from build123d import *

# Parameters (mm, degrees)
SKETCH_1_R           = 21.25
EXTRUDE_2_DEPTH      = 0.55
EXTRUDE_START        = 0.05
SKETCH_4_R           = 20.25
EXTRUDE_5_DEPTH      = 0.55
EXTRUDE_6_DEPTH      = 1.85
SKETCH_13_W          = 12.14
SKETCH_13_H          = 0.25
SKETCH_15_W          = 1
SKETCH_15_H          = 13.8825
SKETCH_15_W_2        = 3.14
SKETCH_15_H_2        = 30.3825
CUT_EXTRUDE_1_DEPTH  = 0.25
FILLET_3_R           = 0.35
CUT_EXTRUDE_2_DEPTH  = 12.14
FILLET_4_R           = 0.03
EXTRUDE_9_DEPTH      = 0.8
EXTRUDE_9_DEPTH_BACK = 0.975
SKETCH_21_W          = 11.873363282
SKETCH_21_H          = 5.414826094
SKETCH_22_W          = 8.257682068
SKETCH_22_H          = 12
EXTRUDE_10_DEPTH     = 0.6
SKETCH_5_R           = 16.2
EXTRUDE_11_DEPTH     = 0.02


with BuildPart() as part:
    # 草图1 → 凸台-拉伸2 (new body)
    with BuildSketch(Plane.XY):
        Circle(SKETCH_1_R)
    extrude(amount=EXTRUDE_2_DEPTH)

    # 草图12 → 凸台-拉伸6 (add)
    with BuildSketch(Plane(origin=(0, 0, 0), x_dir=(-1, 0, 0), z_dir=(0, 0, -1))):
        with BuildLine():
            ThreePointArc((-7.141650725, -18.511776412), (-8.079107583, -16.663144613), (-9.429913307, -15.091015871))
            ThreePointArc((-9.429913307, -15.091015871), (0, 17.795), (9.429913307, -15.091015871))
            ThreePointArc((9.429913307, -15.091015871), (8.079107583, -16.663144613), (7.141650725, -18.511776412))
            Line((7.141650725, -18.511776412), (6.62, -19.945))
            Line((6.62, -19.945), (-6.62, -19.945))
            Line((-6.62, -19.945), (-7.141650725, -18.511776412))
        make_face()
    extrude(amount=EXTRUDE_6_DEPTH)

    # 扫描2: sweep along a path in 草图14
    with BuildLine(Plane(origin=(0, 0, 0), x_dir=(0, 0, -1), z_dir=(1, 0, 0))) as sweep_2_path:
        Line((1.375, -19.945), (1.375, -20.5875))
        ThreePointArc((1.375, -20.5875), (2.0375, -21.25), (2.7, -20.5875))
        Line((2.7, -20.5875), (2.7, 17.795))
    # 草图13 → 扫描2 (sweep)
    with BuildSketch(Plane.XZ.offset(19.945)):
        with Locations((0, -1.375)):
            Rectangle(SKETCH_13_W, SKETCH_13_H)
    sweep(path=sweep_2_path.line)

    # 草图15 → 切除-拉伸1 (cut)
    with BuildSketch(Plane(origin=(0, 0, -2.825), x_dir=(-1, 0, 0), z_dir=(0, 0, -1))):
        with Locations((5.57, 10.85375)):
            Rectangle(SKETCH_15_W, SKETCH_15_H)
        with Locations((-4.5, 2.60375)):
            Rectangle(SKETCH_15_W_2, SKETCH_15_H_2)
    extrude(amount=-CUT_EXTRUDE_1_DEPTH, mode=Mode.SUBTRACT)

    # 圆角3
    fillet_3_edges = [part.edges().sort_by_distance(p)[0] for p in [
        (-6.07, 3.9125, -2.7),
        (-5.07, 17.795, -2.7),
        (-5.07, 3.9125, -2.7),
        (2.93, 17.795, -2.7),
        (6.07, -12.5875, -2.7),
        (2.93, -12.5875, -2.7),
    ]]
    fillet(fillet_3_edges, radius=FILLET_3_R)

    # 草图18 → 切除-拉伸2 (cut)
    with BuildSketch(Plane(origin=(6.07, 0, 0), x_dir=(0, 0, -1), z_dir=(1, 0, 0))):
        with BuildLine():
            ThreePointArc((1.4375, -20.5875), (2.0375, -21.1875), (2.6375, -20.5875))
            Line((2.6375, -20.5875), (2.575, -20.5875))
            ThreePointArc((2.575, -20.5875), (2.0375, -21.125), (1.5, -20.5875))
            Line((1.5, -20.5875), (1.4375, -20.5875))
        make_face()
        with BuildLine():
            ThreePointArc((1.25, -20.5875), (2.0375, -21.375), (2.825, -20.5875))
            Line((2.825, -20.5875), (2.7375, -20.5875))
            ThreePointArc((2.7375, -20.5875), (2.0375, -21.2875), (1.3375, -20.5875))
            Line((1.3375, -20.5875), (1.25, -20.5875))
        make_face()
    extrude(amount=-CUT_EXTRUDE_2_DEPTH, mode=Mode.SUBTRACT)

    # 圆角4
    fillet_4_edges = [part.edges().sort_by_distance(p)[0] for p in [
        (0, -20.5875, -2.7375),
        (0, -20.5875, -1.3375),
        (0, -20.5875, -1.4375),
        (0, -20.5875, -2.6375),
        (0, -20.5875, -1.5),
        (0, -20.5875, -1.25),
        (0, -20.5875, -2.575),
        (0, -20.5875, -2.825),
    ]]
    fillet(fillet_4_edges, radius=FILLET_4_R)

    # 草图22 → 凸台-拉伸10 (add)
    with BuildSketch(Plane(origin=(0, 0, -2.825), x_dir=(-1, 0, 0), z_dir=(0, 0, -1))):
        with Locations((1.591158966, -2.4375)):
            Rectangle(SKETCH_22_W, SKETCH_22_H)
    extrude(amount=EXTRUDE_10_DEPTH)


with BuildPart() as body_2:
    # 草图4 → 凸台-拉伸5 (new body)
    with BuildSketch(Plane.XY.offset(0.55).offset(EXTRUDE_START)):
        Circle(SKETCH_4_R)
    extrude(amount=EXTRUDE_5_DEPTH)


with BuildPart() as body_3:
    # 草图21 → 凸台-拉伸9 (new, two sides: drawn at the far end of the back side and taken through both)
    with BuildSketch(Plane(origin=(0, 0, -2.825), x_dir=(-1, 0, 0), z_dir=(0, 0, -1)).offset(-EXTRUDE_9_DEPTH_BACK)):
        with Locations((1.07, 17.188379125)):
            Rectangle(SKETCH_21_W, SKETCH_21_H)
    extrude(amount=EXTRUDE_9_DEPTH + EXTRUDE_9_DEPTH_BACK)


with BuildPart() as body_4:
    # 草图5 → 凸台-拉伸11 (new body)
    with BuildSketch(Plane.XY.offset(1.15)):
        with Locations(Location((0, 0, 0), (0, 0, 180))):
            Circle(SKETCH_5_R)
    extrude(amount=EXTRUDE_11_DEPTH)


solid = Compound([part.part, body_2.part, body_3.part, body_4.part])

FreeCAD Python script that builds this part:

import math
import FreeCAD as App
import Part
import Sketcher
from FreeCAD import Vector
Q = App.Units.Quantity


def edges_at(feature, points):
    """Names of the edges that pass closest to the given points."""
    edges = feature.Shape.Edges
    near = lambda p: min(range(len(edges)), key=lambda i: edges[i].distToShape(Part.Vertex(*p))[0])
    return sorted({f"Edge{near(p) + 1}" for p in points})

doc = App.newDocument("Part")
body = doc.addObject("PartDesign::Body", "Body")

sketch1 = body.newObject("Sketcher::SketchObject", "Sketch")
sketch1.AttachmentSupport = (doc.getObject("XY_Plane"), [""])
sketch1.MapMode = "FlatFace"
sketch1.addGeometry(Part.Circle(Vector(0, 0, 0), Vector(0, 0, 1), 21.25), False)
sketch1.addConstraint([
    Sketcher.Constraint("Coincident", 0, 3, -1, 1),
    Sketcher.Constraint("Diameter", 0, 42.5),
])
pad1 = body.newObject("PartDesign::Pad", "Pad")
pad1.Profile = sketch1
pad1.Length = 0.55

sketch2 = body.newObject("Sketcher::SketchObject", "Sketch001")
sketch2.AttachmentSupport = (doc.getObject("XY_Plane"), [""])
sketch2.MapMode = "FlatFace"
sketch2.addGeometry([
    Part.ArcOfCircle(Part.Circle(Vector(15.259761, -21.466527, 0), Vector(0, 0, 1), 8.639113), math.radians(132.44019), math.radians(160)),
    Part.LineSegment(Vector(7.141651, -18.511776, 0), Vector(6.62, -19.945, 0)),
    Part.LineSegment(Vector(6.62, -19.945, 0), Vector(-6.62, -19.945, 0)),
    Part.LineSegment(Vector(-6.62, -19.945, 0), Vector(-7.141651, -18.511776, 0)),
    Part.ArcOfCircle(Part.Circle(Vector(-15.259761, -21.466527, 0), Vector(0, 0, 1), 8.639113), math.radians(20), math.radians(47.55981)),
    Part.ArcOfCircle(Part.Circle(Vector(0, 0, 0), Vector(0, 0, 1), 17.795), math.radians(-58), math.radians(238)),
], False)
sketch2.addConstraint([
    Sketcher.Constraint("Tangent", 0, 2, 1, 1),
    Sketcher.Constraint("Coincident", 1, 2, 2, 1),
    Sketcher.Constraint("Coincident", 2, 2, 3, 1),
    Sketcher.Constraint("Tangent", 3, 2, 4, 1),
    Sketcher.Constraint("Coincident", 4, 2, 5, 2),
    Sketcher.Constraint("Coincident", 5, 1, 0, 1),
    Sketcher.Constraint("Horizontal", 2),
    Sketcher.Constraint("Coincident", 5, 3, -1, 1),
    Sketcher.Constraint("Equal", 0, 4),
    Sketcher.Constraint("Symmetric", 0, 3, 4, 3, -2),
    Sketcher.Constraint("Horizontal", 0, 2, 3, 2),
    Sketcher.Constraint("Angle", 1, Q("-110 deg")),
    Sketcher.Constraint("Radius", 5, 17.795),
    Sketcher.Constraint("DistanceX", 2, 2, 2, 1, 13.24),
    Sketcher.Constraint("DistanceY", 1, 2, -1, 1, 19.945),
    Sketcher.Constraint("Radius", 0, 8.639113),
    Sketcher.Constraint("DistanceX", 3, 2, 0, 2, 14.283301),
])
pad2 = body.newObject("PartDesign::Pad", "Pad001")
pad2.Profile = sketch2
pad2.Length = 1.85
pad2.Reversed = True

sketch3 = body.newObject("Sketcher::SketchObject", "Sketch002")
sketch3.AttachmentSupport = (doc.getObject("XZ_Plane"), [""])
sketch3.MapMode = "FlatFace"
sketch3.AttachmentOffset = App.Placement(Vector(0, 0, 19.945), App.Rotation())
sketch3.addGeometry([
    Part.LineSegment(Vector(-6.07, -1.25, 0), Vector(-6.07, -1.5, 0)),
    Part.LineSegment(Vector(-6.07, -1.5, 0), Vector(6.07, -1.5, 0)),
    Part.LineSegment(Vector(6.07, -1.5, 0), Vector(6.07, -1.25, 0)),
    Part.LineSegment(Vector(6.07, -1.25, 0), Vector(-6.07, -1.25, 0)),
], False)
sketch3.addConstraint([
    Sketcher.Constraint("Coincident", 0, 2, 1, 1),
    Sketcher.Constraint("Coincident", 1, 2, 2, 1),
    Sketcher.Constraint("Coincident", 2, 2, 3, 1),
    Sketcher.Constraint("Coincident", 3, 2, 0, 1),
    Sketcher.Constraint("Vertical", 0),
    Sketcher.Constraint("Horizontal", 1),
    Sketcher.Constraint("Vertical", 2),
    Sketcher.Constraint("Horizontal", 3),
    Sketcher.Constraint("DistanceX", 1, 1, 1, 2, 12.14),
    Sketcher.Constraint("DistanceY", 0, 2, 0, 1, 0.25),
    Sketcher.Constraint("DistanceY", 0, 2, -1, 1, 1.5),
    Sketcher.Constraint("DistanceX", 0, 2, -1, 1, 6.07),
])

sketch4 = body.newObject("Sketcher::SketchObject", "Sketch003")
sketch4.AttachmentSupport = (doc.getObject("YZ_Plane"), [""])
sketch4.MapMode = "FlatFace"
sketch4.addGeometry([
    Part.LineSegment(Vector(-19.945, -1.375, 0), Vector(-20.5875, -1.375, 0)),
    Part.ArcOfCircle(Part.Circle(Vector(-20.5875, -2.0375, 0), Vector(0, 0, 1), 0.6625), math.radians(90), math.radians(270)),
    Part.LineSegment(Vector(-20.5875, -2.7, 0), Vector(17.795, -2.7, 0)),
], False)
sketch4.addConstraint([
    Sketcher.Constraint("Tangent", 0, 2, 1, 1),
    Sketcher.Constraint("Tangent", 1, 2, 2, 1),
    Sketcher.Constraint("Horizontal", 0),
    Sketcher.Constraint("Horizontal", 2),
    Sketcher.Constraint("DistanceY", 1, 2, -1, 1, 2.7),
    Sketcher.Constraint("Radius", 1, 0.6625),
    Sketcher.Constraint("DistanceX", 0, 1, 2, 2, 37.74),
    Sketcher.Constraint("DistanceX", 0, 2, 0, 1, 0.6425),
    Sketcher.Constraint("DistanceX", 0, 1, -1, 1, 19.945),
])
doc.recompute()

additivepipe = body.newObject("PartDesign::AdditivePipe", "AdditivePipe")
additivepipe.Profile = sketch3
additivepipe.Spine = (sketch4, ["Edge1", "Edge2", "Edge3"])

sketch5 = body.newObject("Sketcher::SketchObject", "Sketch004")
sketch5.AttachmentSupport = (doc.getObject("XY_Plane"), [""])
sketch5.MapMode = "FlatFace"
sketch5.AttachmentOffset = App.Placement(Vector(0, 0, -2.825), App.Rotation())
sketch5.addGeometry([
    Part.LineSegment(Vector(-5.07, 17.795, 0), Vector(-5.07, 3.9125, 0)),
    Part.LineSegment(Vector(-5.07, 3.9125, 0), Vector(-6.07, 3.9125, 0)),
    Part.LineSegment(Vector(-6.07, 3.9125, 0), Vector(-6.07, 17.795, 0)),
    Part.LineSegment(Vector(-6.07, 17.795, 0), Vector(-5.07, 17.795, 0)),
    Part.LineSegment(Vector(6.07, 17.795, 0), Vector(6.07, -12.5875, 0)),
    Part.LineSegment(Vector(6.07, -12.5875, 0), Vector(2.93, -12.5875, 0)),
    Part.LineSegment(Vector(2.93, -12.5875, 0), Vector(2.93, 17.795, 0)),
    Part.LineSegment(Vector(2.93, 17.795, 0), Vector(6.07, 17.795, 0)),
], False)
sketch5.addConstraint([
    Sketcher.Constraint("Coincident", 0, 2, 1, 1),
    Sketcher.Constraint("Coincident", 1, 2, 2, 1),
    Sketcher.Constraint("Coincident", 2, 2, 3, 1),
    Sketcher.Constraint("Coincident", 3, 2, 0, 1),
    Sketcher.Constraint("Coincident", 4, 2, 5, 1),
    Sketcher.Constraint("Coincident", 5, 2, 6, 1),
    Sketcher.Constraint("Coincident", 6, 2, 7, 1),
    Sketcher.Constraint("Coincident", 7, 2, 4, 1),
    Sketcher.Constraint("Vertical", 0),
    Sketcher.Constraint("Horizontal", 1),
    Sketcher.Constraint("Vertical", 2),
    Sketcher.Constraint("Horizontal", 3),
    Sketcher.Constraint("Vertical", 4),
    Sketcher.Constraint("Horizontal", 5),
    Sketcher.Constraint("Vertical", 6),
    Sketcher.Constraint("Horizontal", 7),
    Sketcher.Constraint("Symmetric", 2, 2, 7, 2, -2),
    Sketcher.Constraint("DistanceX", 1, 2, 1, 1, 1.0),
    Sketcher.Constraint("DistanceX", 0, 2, 5, 2, 8.0),
    Sketcher.Constraint("DistanceX", 5, 2, 5, 1, 3.14),
    Sketcher.Constraint("DistanceY", 4, 2, 0, 2, 16.5),
    Sketcher.Constraint("DistanceY", 0, 2, 0, 1, 13.8825),
    Sketcher.Constraint("DistanceY", -1, 1, 2, 2, 17.795),
])
pocket1 = body.newObject("PartDesign::Pocket", "Pocket")
pocket1.Profile = sketch5
pocket1.Length = 0.25
pocket1.Reversed = True
doc.recompute()

fillet = body.newObject("PartDesign::Fillet", "Fillet")
fillet.Base = (pocket1, edges_at(pocket1, [
    (-6.07, 3.913, -2.7),
    (-5.07, 17.795, -2.7),
    (-5.07, 3.913, -2.7),
    (2.93, 17.795, -2.7),
    (6.07, -12.588, -2.7),
    (2.93, -12.588, -2.7),
]))
fillet.Radius = 0.35

sketch6 = body.newObject("Sketcher::SketchObject", "Sketch005")
sketch6.AttachmentSupport = (doc.getObject("YZ_Plane"), [""])
sketch6.MapMode = "FlatFace"
sketch6.AttachmentOffset = App.Placement(Vector(0, 0, 6.07), App.Rotation())
sketch6.addGeometry([
    Part.ArcOfCircle(Part.Circle(Vector(-20.5875, -2.0375, 0), Vector(0, 0, 1), 0.6), math.radians(90), math.radians(270)),
    Part.LineSegment(Vector(-20.5875, -2.6375, 0), Vector(-20.5875, -2.575, 0)),
    Part.ArcOfCircle(Part.Circle(Vector(-20.5875, -2.0375, 0), Vector(0, 0, 1), 0.5375), math.radians(90), math.radians(270)),
    Part.LineSegment(Vector(-20.5875, -1.5, 0), Vector(-20.5875, -1.4375, 0)),
    Part.ArcOfCircle(Part.Circle(Vector(-20.5875, -2.0375, 0), Vector(0, 0, 1), 0.7875), math.radians(90), math.radians(270)),
    Part.LineSegment(Vector(-20.5875, -2.825, 0), Vector(-20.5875, -2.7375, 0)),
    Part.ArcOfCircle(Part.Circle(Vector(-20.5875, -2.0375, 0), Vector(0, 0, 1), 0.7), math.radians(90), math.radians(270)),
    Part.LineSegment(Vector(-20.5875, -1.3375, 0), Vector(-20.5875, -1.25, 0)),
], False)
sketch6.addConstraint([
    Sketcher.Constraint("Coincident", 0, 2, 1, 1),
    Sketcher.Constraint("Coincident", 1, 2, 2, 2),
    Sketcher.Constraint("Coincident", 2, 1, 3, 1),
    Sketcher.Constraint("Coincident", 3, 2, 0, 1),
    Sketcher.Constraint("Coincident", 4, 2, 5, 1),
    Sketcher.Constraint("Coincident", 5, 2, 6, 2),
    Sketcher.Constraint("Coincident", 6, 1, 7, 1),
    Sketcher.Constraint("Coincident", 7, 2, 4, 1),
    Sketcher.Constraint("Vertical", 1),
    Sketcher.Constraint("Vertical", 3),
    Sketcher.Constraint("Vertical", 5),
    Sketcher.Constraint("Vertical", 7),
    Sketcher.Constraint("Coincident", 2, 3, 0, 3),
    Sketcher.Constraint("Coincident", 4, 3, 0, 3),
    Sketcher.Constraint("Coincident", 6, 3, 0, 3),
    Sketcher.Constraint("Vertical", 6, 3, 0, 2),
    Sketcher.Constraint("Vertical", 1, 2, 2, 1),
    Sketcher.Constraint("Vertical", 3, 2, 4, 2),
    Sketcher.Constraint("Vertical", 5, 2, 6, 1),
    Sketcher.Constraint("Radius", 0, 0.6),
    Sketcher.Constraint("Radius", 6, 0.7),
    Sketcher.Constraint("DistanceY", 2, 1, -1, 1, 1.5),
    Sketcher.Constraint("Radius", 2, 0.5375),
    Sketcher.Constraint("Radius", 4, 0.7875),
    Sketcher.Constraint("DistanceX", 0, 3, -1, 1, 20.5875),
])
pocket2 = body.newObject("PartDesign::Pocket", "Pocket001")
pocket2.Profile = sketch6
pocket2.Length = 12.14
doc.recompute()

fillet2 = body.newObject("PartDesign::Fillet", "Fillet001")
fillet2.Base = (pocket2, edges_at(pocket2, [
    (0, -20.587, -2.737),
    (0, -20.587, -1.337),
    (0, -20.587, -1.438),
    (0, -20.587, -2.638),
    (0, -20.587, -1.5),
    (0, -20.587, -1.25),
    (0, -20.587, -2.575),
    (0, -20.587, -2.825),
]))
fillet2.Radius = 0.03

sketch7 = body.newObject("Sketcher::SketchObject", "Sketch006")
sketch7.AttachmentSupport = (doc.getObject("XY_Plane"), [""])
sketch7.MapMode = "FlatFace"
sketch7.AttachmentOffset = App.Placement(Vector(0, 0, -2.825), App.Rotation())
sketch7.addGeometry([
    Part.LineSegment(Vector(2.537682, 3.5625, 0), Vector(2.537682, -8.4375, 0)),
    Part.LineSegment(Vector(2.537682, -8.4375, 0), Vector(-5.72, -8.4375, 0)),
    Part.LineSegment(Vector(-5.72, -8.4375, 0), Vector(-5.72, 3.5625, 0)),
    Part.LineSegment(Vector(-5.72, 3.5625, 0), Vector(2.537682, 3.5625, 0)),
], False)
sketch7.addConstraint([
    Sketcher.Constraint("Coincident", 0, 2, 1, 1),
    Sketcher.Constraint("Coincident", 1, 2, 2, 1),
    Sketcher.Constraint("Coincident", 2, 2, 3, 1),
    Sketcher.Constraint("Coincident", 3, 2, 0, 1),
    Sketcher.Constraint("Vertical", 0),
    Sketcher.Constraint("Horizontal", 1),
    Sketcher.Constraint("Vertical", 2),
    Sketcher.Constraint("Horizontal", 3),
    Sketcher.Constraint("DistanceY", 0, 2, 0, 1, 12.0),
    Sketcher.Constraint("DistanceX", 1, 2, -1, 1, 5.72),
    Sketcher.Constraint("DistanceY", 0, 2, -1, 1, 8.4375),
    Sketcher.Constraint("DistanceX", 1, 2, 1, 1, 8.257682),
])
pad3 = body.newObject("PartDesign::Pad", "Pad002")
pad3.Profile = sketch7
pad3.Length = 0.6
pad3.Reversed = True
body2 = doc.addObject("PartDesign::Body", "Body001")

sketch8 = body2.newObject("Sketcher::SketchObject", "Sketch007")
sketch8.AttachmentSupport = (doc.getObject("XY_Plane001"), [""])
sketch8.MapMode = "FlatFace"
sketch8.AttachmentOffset = App.Placement(Vector(0, 0, 0.6), App.Rotation())
sketch8.addGeometry(Part.Circle(Vector(0, 0, 0), Vector(0, 0, 1), 20.25), False)
sketch8.addConstraint([
    Sketcher.Constraint("Coincident", 0, 3, -1, 1),
    Sketcher.Constraint("Diameter", 0, 40.5),
])
pad4 = body2.newObject("PartDesign::Pad", "Pad003")
pad4.Profile = sketch8
pad4.Length = 0.55
body3 = doc.addObject("PartDesign::Body", "Body002")

sketch9 = body3.newObject("Sketcher::SketchObject", "Sketch008")
sketch9.AttachmentSupport = (doc.getObject("XY_Plane002"), [""])
sketch9.MapMode = "FlatFace"
sketch9.AttachmentOffset = App.Placement(Vector(0, 0, -2.825), App.Rotation())
sketch9.addGeometry([
    Part.LineSegment(Vector(4.866682, 19.895792, 0), Vector(4.866682, 14.480966, 0)),
    Part.LineSegment(Vector(4.866682, 14.480966, 0), Vector(-7.006682, 14.480966, 0)),
    Part.LineSegment(Vector(-7.006682, 14.480966, 0), Vector(-7.006682, 19.895792, 0)),
    Part.LineSegment(Vector(-7.006682, 19.895792, 0), Vector(4.866682, 19.895792, 0)),
], False)
sketch9.addConstraint([
    Sketcher.Constraint("Coincident", 0, 2, 1, 1),
    Sketcher.Constraint("Coincident", 1, 2, 2, 1),
    Sketcher.Constraint("Coincident", 2, 2, 3, 1),
    Sketcher.Constraint("Coincident", 3, 2, 0, 1),
    Sketcher.Constraint("Vertical", 0),
    Sketcher.Constraint("Horizontal", 1),
    Sketcher.Constraint("Vertical", 2),
    Sketcher.Constraint("Horizontal", 3),
    Sketcher.Constraint("DistanceX", 1, 2, 1, 1, 11.873363),
    Sketcher.Constraint("DistanceY", 0, 2, 0, 1, 5.414826),
    Sketcher.Constraint("DistanceX", -1, 1, 0, 2, 4.866682),
    Sketcher.Constraint("DistanceY", -1, 1, 0, 2, 14.480966),
])
pad5 = body3.newObject("PartDesign::Pad", "Pad004")
pad5.Profile = sketch9
pad5.Type = "TwoLengths"
pad5.Length = 0.8
pad5.Length2 = 0.975
pad5.Reversed = True
body4 = doc.addObject("PartDesign::Body", "Body003")

sketch10 = body4.newObject("Sketcher::SketchObject", "Sketch009")
sketch10.AttachmentSupport = (doc.getObject("XY_Plane003"), [""])
sketch10.MapMode = "FlatFace"
sketch10.AttachmentOffset = App.Placement(Vector(0, 0, 1.15), App.Rotation())
sketch10.addGeometry(Part.Circle(Vector(0, 0, 0), Vector(0, 0, 1), 16.2), False)
sketch10.addConstraint([
    Sketcher.Constraint("Coincident", 0, 3, -1, 1),
    Sketcher.Constraint("Diameter", 0, 32.4),
])
pad6 = body4.newObject("PartDesign::Pad", "Pad005")
pad6.Profile = sketch10
pad6.Length = 0.02

doc.recompute()
